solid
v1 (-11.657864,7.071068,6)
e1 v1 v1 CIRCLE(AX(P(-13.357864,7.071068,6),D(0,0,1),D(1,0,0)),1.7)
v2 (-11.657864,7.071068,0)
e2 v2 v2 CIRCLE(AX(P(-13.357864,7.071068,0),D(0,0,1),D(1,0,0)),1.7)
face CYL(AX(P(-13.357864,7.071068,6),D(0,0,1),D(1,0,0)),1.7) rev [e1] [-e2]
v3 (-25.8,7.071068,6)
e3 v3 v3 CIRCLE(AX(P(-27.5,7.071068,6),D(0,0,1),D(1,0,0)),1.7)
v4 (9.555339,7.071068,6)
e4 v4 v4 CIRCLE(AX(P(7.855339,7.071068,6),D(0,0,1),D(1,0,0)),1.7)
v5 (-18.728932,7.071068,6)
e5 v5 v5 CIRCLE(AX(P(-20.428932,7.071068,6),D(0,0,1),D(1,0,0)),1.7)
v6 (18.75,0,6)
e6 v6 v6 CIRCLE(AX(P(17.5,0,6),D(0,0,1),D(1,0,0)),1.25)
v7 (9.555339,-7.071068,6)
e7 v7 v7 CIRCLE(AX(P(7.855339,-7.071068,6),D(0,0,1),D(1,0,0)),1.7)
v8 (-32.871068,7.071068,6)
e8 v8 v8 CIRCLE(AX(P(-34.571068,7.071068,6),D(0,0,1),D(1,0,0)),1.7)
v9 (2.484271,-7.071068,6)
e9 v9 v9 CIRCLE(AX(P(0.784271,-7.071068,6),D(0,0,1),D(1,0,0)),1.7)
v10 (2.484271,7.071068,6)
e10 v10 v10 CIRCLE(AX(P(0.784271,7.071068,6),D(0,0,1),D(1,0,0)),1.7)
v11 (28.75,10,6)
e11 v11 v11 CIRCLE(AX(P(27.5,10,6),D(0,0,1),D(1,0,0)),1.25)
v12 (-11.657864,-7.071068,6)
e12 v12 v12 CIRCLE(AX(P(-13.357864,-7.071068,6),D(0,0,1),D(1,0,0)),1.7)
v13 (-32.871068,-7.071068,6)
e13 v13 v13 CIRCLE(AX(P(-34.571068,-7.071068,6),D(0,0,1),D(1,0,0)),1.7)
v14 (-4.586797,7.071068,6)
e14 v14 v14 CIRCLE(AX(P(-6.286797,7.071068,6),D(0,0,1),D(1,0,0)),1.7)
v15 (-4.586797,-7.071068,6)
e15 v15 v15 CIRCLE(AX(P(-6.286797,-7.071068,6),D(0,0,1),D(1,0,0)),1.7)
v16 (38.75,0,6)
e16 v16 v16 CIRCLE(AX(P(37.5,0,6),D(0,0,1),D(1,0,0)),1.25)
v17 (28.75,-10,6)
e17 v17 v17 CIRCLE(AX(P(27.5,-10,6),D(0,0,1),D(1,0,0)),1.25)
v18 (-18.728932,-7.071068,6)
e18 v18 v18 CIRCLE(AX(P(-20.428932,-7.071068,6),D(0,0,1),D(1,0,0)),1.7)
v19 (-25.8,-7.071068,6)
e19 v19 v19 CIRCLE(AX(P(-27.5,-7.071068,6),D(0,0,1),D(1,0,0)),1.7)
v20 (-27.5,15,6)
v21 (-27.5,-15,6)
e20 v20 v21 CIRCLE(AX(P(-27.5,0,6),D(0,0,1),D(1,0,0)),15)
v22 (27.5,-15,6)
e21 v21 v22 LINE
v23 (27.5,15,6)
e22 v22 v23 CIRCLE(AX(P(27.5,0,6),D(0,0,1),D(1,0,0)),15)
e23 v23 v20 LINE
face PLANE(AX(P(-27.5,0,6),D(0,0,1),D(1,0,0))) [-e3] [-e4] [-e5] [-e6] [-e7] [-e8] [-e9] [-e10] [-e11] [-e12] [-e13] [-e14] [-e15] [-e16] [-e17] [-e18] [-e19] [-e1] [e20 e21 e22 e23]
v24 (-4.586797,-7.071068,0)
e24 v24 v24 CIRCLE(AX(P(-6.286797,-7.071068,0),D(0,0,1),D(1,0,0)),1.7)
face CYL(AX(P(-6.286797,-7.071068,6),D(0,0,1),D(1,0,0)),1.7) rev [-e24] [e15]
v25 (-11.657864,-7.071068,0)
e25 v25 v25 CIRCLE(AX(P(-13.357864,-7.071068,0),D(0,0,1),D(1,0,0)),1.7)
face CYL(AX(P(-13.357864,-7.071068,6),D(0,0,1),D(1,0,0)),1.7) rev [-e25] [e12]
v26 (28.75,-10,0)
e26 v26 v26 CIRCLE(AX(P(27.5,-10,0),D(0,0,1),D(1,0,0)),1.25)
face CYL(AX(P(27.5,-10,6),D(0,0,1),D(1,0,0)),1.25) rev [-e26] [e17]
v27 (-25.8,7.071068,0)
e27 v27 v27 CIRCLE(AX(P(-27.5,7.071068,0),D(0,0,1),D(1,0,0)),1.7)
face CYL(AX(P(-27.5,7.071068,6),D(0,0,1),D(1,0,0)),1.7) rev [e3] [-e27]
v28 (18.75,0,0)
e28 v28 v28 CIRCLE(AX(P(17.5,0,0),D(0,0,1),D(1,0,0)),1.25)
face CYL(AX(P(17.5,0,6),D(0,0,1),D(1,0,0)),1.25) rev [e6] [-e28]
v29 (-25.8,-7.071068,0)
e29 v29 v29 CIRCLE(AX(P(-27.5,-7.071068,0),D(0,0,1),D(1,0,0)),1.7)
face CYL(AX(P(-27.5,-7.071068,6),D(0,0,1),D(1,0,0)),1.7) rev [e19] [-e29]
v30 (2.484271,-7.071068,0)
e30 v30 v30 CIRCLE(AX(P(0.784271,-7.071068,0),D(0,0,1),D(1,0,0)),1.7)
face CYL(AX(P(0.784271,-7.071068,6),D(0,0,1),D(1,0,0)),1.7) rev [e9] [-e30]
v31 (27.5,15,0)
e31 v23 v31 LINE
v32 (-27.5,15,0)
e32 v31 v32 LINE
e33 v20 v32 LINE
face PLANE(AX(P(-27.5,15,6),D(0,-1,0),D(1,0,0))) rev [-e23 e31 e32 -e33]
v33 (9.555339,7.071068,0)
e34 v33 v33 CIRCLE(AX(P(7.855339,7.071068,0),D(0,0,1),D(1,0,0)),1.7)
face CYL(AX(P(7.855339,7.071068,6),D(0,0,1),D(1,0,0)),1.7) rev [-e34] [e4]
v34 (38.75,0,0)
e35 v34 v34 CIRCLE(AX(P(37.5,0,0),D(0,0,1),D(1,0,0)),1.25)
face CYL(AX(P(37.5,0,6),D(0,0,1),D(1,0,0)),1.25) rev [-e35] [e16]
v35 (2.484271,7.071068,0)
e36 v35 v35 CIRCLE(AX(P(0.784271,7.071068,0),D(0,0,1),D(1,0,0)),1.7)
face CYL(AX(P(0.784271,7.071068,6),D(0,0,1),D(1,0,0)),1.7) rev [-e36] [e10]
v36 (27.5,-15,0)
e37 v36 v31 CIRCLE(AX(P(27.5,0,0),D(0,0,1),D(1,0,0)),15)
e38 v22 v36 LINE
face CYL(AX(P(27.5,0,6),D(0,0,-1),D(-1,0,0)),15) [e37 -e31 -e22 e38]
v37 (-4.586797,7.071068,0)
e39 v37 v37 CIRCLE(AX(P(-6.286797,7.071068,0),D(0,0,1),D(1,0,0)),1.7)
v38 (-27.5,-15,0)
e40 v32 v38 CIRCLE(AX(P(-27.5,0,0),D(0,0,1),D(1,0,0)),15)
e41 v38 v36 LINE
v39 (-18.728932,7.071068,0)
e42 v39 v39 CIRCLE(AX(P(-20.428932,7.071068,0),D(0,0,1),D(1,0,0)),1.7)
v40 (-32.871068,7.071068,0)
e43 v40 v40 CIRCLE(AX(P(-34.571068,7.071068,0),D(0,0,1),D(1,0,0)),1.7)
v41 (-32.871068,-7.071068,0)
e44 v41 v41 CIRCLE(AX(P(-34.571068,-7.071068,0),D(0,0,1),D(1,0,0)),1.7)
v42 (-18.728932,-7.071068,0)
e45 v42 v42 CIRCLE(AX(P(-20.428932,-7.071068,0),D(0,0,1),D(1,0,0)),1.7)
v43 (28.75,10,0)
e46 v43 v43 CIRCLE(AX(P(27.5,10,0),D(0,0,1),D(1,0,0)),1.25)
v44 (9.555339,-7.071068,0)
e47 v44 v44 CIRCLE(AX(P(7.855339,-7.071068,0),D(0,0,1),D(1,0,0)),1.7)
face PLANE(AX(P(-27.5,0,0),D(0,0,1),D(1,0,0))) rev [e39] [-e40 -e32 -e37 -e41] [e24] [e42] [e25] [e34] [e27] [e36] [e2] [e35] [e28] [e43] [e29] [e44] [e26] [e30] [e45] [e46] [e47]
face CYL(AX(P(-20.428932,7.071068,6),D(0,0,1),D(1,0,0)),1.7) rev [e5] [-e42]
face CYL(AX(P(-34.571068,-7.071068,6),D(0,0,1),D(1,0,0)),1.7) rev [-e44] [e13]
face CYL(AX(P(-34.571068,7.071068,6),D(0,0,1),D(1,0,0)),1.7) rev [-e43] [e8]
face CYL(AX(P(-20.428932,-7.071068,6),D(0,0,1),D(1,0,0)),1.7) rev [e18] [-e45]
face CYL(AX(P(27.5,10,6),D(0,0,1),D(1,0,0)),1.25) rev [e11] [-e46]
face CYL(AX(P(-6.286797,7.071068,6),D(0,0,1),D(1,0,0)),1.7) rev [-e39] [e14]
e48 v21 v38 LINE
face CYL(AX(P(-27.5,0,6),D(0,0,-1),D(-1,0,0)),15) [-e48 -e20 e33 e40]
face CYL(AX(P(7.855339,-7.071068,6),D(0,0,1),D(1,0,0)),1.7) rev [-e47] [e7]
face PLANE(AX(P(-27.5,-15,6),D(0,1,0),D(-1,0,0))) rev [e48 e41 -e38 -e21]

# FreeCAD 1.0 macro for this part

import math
import FreeCAD as App
import Part
import Sketcher

V = App.Vector
Q = App.Units.Quantity

doc = App.newDocument("Part")
body = doc.addObject("PartDesign::Body", "Body")

# Sketch on XY plane
sketch1 = body.newObject("Sketcher::SketchObject", "Sketch")
sketch1.AttachmentSupport = (doc.getObject("XY_Plane"), [""])
sketch1.MapMode = "FlatFace"
sketch1.addGeometry([
    Part.LineSegment(V(28, 15, 0), V(-28, 15, 0)),
    Part.ArcOfCircle(Part.Circle(V(-28, 0, 0), V(0, 0, 1), 15), math.radians(90), math.radians(270)),
    Part.LineSegment(V(-28, -15, 0), V(28, -15, 0)),
    Part.ArcOfCircle(Part.Circle(V(28, 0, 0), V(0, 0, 1), 15), math.radians(-90), math.radians(90)),
], False)
sketch1.addConstraint([
    Sketcher.Constraint("Tangent", 0, 2, 1, 1),
    Sketcher.Constraint("Tangent", 1, 2, 2, 1),
    Sketcher.Constraint("Tangent", 2, 2, 3, 1),
    Sketcher.Constraint("Tangent", 3, 2, 0, 1),
    Sketcher.Constraint("Horizontal", 0),
    Sketcher.Constraint("Horizontal", 2),
    Sketcher.Constraint("Symmetric", 1, 3, 3, 3, -1, 1),
    Sketcher.Constraint("Radius", 1, Q("15 mm")),
    Sketcher.Constraint("DistanceX", 0, 2, 0, 1, Q("55 mm")),
])
pad1 = body.newObject("PartDesign::Pad", "Pad")
pad1.Profile = sketch1
pad1.Length = 6

# Sketch on XY plane
sketch2 = body.newObject("Sketcher::SketchObject", "Sketch001")
sketch2.AttachmentSupport = (doc.getObject("XY_Plane"), [""])
sketch2.MapMode = "FlatFace"
sketch2.AttachmentOffset = App.Placement(V(0, 0, 6), App.Rotation())
sketch2.addGeometry([
    Part.Circle(V(27.5, 10, 0), V(0, 0, 1), 1.2),
    Part.Circle(V(37.5, 0, 0), V(0, 0, 1), 1.2),
    Part.Circle(V(27.5, -10, 0), V(0, 0, 1), 1.2),
    Part.Circle(V(17.5, 0, 0), V(0, 0, 1), 1.2),
], False)
sketch2.addConstraint([
    Sketcher.Constraint("Equal", 0, 1),
    Sketcher.Constraint("Equal", 1, 2),
    Sketcher.Constraint("Equal", 2, 3),
    Sketcher.Constraint("Symmetric", 0, 3, 2, 3, -1),
    Sketcher.Constraint("PointOnObject", 1, 3, -1),
    Sketcher.Constraint("PointOnObject", 3, 3, -1),
    Sketcher.Constraint("Diameter", 0, Q("2.5 mm")),
    Sketcher.Constraint("DistanceY", -1, 1, 0, 3, Q("10 mm")),
    Sketcher.Constraint("DistanceX", 0, 3, 1, 3, Q("10 mm")),
    Sketcher.Constraint("DistanceX", 3, 3, 0, 3, Q("10 mm")),
    Sketcher.Constraint("DistanceX", -1, 1, 0, 3, Q("27.5 mm")),
])
doc.recompute()
hole = body.newObject("PartDesign::Hole", "Hole")
hole.Profile = sketch2
hole.ThreadType = "None"
hole.Diameter = 2.5
hole.DepthType = "ThroughAll"

# Sketch on XY plane
sketch3 = body.newObject("Sketcher::SketchObject", "Sketch002")
sketch3.AttachmentSupport = (doc.getObject("XY_Plane"), [""])
sketch3.MapMode = "FlatFace"
sketch3.AttachmentOffset = App.Placement(V(0, 0, 6), App.Rotation())
sketch3.addGeometry([
    Part.Circle(V(-34.6, 7.1, 0), V(0, 0, 1), 1.7),  # 0
    Part.Circle(V(-20.4, 7.1, 0), V(0, 0, 1), 1.7),  # 1
    Part.Circle(V(-6.3, 7.1, 0), V(0, 0, 1), 1.7),  # 2
    Part.Circle(V(7.9, 7.1, 0), V(0, 0, 1), 1.7),  # 3
    Part.Circle(V(7.9, -7.1, 0), V(0, 0, 1), 1.7),  # 4
    Part.Circle(V(-6.3, -7.1, 0), V(0, 0, 1), 1.7),  # 5
    Part.Circle(V(-20.4, -7.1, 0), V(0, 0, 1), 1.7),  # 6
    Part.Circle(V(-34.6, -7.1, 0), V(0, 0, 1), 1.7),  # 7
    Part.Circle(V(-27.5, -7.1, 0), V(0, 0, 1), 1.7),  # 8
    Part.Circle(V(-27.5, 7.1, 0), V(0, 0, 1), 1.7),  # 9
    Part.Circle(V(-13.4, 7.1, 0), V(0, 0, 1), 1.7),  # 10
    Part.Circle(V(-13.4, -7.1, 0), V(0, 0, 1), 1.7),  # 11
    Part.Circle(V(0.8, -7.1, 0), V(0, 0, 1), 1.7),  # 12
    Part.Circle(V(0.8, 7.1, 0), V(0, 0, 1), 1.7),  # 13
], False)
sketch3.addConstraint([
    Sketcher.Constraint("Equal", 0, 1),
    Sketcher.Constraint("Equal", 1, 2),
    Sketcher.Constraint("Equal", 2, 3),
    Sketcher.Constraint("Equal", 3, 4),
    Sketcher.Constraint("Equal", 4, 5),
    Sketcher.Constraint("Equal", 5, 6),
    Sketcher.Constraint("Equal", 6, 7),
    Sketcher.Constraint("Equal", 7, 8),
    Sketcher.Constraint("Equal", 8, 9),
    Sketcher.Constraint("Equal", 9, 10),
    Sketcher.Constraint("Equal", 10, 11),
    Sketcher.Constraint("Equal", 11, 12),
    Sketcher.Constraint("Equal", 12, 13),
    Sketcher.Constraint("Symmetric", 3, 3, 4, 3, -1),
    Sketcher.Constraint("Symmetric", 2, 3, 5, 3, -1),
    Sketcher.Constraint("Symmetric", 1, 3, 6, 3, -1),
    Sketcher.Constraint("Symmetric", 0, 3, 7, 3, -1),
    Sketcher.Constraint("Symmetric", 8, 3, 9, 3, -1),
    Sketcher.Constraint("Symmetric", 10, 3, 11, 3, -1),
    Sketcher.Constraint("Symmetric", 12, 3, 13, 3, -1),
    Sketcher.Constraint("Horizontal", 0, 3, 1, 3),
    Sketcher.Constraint("Horizontal", 1, 3, 2, 3),
    Sketcher.Constraint("Horizontal", 2, 3, 3, 3),
    Sketcher.Constraint("Horizontal", 7, 3, 8, 3),
    Sketcher.Constraint("Horizontal", 9, 3, 10, 3),
    Sketcher.Constraint("Horizontal", 11, 3, 12, 3),
    Sketcher.Constraint("Diameter", 0, Q("3.4 mm")),
    Sketcher.Constraint("DistanceX", 8, 3, -1, 1, Q("27.5 mm")),
    Sketcher.Constraint("DistanceX", -1, 1, 3, 3, Q("7.855339 mm")),
    Sketcher.Constraint("DistanceX", -1, 1, 12, 3, Q("0.784271 mm")),
    Sketcher.Constraint("DistanceX", 0, 3, 2, 3, Q("28.284271 mm")),
    Sketcher.Constraint("DistanceX", 1, 3, 3, 3, Q("28.284271 mm")),
    Sketcher.Constraint("DistanceX", 0, 3, -1, 1, Q("34.571068 mm")),
    Sketcher.Constraint("DistanceY", -1, 1, 0, 3, Q("7.071068 mm")),
    Sketcher.Constraint("DistanceX", 10, 3, -1, 1, Q("13.357864 mm")),
])
doc.recompute()
hole2 = body.newObject("PartDesign::Hole", "Hole001")
hole2.Profile = sketch3
hole2.ThreadType = "None"
hole2.Diameter = 3.4
hole2.DepthType = "ThroughAll"

doc.recompute()
